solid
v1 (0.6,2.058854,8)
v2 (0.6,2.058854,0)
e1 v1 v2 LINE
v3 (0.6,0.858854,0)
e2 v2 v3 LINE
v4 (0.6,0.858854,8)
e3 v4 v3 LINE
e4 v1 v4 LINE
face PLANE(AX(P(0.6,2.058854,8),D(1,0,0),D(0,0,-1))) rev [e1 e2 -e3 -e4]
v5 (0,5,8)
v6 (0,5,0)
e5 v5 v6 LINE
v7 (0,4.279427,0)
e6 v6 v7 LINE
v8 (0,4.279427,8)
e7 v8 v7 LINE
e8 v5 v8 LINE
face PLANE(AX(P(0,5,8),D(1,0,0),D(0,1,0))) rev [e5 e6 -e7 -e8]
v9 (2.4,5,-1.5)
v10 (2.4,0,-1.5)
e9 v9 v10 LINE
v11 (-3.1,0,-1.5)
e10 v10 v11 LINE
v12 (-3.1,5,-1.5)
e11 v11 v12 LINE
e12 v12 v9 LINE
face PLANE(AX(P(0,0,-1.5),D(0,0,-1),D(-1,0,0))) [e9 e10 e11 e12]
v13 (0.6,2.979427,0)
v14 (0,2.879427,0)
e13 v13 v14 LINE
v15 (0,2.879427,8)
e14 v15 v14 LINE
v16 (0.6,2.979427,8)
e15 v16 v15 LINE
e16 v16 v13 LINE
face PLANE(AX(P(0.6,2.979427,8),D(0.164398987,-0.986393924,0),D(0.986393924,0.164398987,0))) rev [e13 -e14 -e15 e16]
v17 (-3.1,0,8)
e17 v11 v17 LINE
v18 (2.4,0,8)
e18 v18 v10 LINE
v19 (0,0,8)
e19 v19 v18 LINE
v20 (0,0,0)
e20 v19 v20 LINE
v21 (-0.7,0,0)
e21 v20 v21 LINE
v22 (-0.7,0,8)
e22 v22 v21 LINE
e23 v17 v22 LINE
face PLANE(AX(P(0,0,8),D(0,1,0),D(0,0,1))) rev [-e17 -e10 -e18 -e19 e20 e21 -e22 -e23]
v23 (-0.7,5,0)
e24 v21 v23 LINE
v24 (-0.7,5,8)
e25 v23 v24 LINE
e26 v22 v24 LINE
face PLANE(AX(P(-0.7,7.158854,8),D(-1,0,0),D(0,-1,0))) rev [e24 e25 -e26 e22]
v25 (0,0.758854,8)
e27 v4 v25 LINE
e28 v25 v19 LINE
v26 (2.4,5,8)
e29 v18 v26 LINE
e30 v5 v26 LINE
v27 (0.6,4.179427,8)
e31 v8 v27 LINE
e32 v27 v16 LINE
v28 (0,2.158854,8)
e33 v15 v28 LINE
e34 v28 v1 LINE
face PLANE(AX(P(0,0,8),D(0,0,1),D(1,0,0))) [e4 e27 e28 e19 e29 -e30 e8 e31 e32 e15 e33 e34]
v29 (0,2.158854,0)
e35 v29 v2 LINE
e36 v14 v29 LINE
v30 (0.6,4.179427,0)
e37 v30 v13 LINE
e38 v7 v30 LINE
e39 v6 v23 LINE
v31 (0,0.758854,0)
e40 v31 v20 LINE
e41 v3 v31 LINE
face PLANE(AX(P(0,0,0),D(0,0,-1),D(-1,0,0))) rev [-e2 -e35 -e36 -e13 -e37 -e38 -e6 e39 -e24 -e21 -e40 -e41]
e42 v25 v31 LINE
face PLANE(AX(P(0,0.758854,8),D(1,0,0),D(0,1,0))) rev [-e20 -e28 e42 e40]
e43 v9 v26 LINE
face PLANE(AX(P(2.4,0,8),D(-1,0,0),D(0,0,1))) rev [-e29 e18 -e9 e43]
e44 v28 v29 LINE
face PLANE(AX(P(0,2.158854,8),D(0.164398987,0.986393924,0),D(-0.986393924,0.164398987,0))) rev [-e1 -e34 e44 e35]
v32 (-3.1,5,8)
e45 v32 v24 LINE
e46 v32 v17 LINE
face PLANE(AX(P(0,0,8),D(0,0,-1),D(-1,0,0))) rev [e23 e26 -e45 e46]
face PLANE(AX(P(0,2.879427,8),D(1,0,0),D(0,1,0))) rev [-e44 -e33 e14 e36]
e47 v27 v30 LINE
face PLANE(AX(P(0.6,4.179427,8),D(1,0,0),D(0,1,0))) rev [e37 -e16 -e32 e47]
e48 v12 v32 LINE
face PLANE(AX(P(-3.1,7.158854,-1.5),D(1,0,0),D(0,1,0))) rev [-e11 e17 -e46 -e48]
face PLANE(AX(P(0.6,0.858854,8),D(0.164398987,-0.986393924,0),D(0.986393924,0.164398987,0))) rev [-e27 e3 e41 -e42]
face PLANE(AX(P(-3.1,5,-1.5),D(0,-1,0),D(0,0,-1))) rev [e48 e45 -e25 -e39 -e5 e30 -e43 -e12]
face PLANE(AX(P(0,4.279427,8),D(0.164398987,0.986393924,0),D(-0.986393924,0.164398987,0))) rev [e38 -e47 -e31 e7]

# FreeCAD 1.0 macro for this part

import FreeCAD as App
import Part
import Sketcher
Q = App.Units.Quantity


def add_polygon(sketch, points):
    """Adds a closed chain of lines whose ends are joined by coincident constraints."""
    first, n = sketch.GeometryCount, len(points)
    for a, b in zip(points, points[1:] + points[:1]):
        sketch.addGeometry(Part.LineSegment(App.Vector(*a, 0), App.Vector(*b, 0)), False)
    for i in range(n):
        sketch.addConstraint(Sketcher.Constraint("Coincident", first + i, 2, first + (i + 1) % n, 1))

doc = App.newDocument("Part")
body = doc.addObject("PartDesign::Body", "Body")

# Sketch on XY plane
sketch1 = doc.addObject("Sketcher::SketchObject", "Sketch")
body.addObject(sketch1)
sketch1.AttachmentSupport = (doc.XY_Plane, [""])
sketch1.MapMode = "FlatFace"
add_polygon(sketch1, [(0, 7.2), (0, 6.4), (0.6, 6.3), (0.6, 5.1), (0, 5), (0, 4.3), (0.6, 4.2), (0.6, 3), (0, 2.9), (0, 2.2), (0.6, 2.1), (0.6, 0.9), (0, 0.8), (0, 0), (2.4, 0), (2.4, 7.2)])  # lines 0-15
sketch1.addConstraint([
    Sketcher.Constraint("Vertical", 0),
    Sketcher.Constraint("Vertical", 2),
    Sketcher.Constraint("Vertical", 4),
    Sketcher.Constraint("Vertical", 6),
    Sketcher.Constraint("Vertical", 8),
    Sketcher.Constraint("Vertical", 10),
    Sketcher.Constraint("Vertical", 12),
    Sketcher.Constraint("Horizontal", 13),
    Sketcher.Constraint("Vertical", 14),
    Sketcher.Constraint("Horizontal", 15),
    Sketcher.Constraint("Coincident", 12, 2, -1, 1),
    Sketcher.Constraint("PointOnObject", 0, 2, -2),
    Sketcher.Constraint("PointOnObject", 3, 2, -2),
    Sketcher.Constraint("PointOnObject", 7, 2, -2),
    Sketcher.Constraint("Parallel", 1, 5),
    Sketcher.Constraint("Parallel", 3, 7),
    Sketcher.Constraint("Parallel", 5, 9),
    Sketcher.Constraint("Parallel", 7, 11),
    Sketcher.Constraint("Vertical", 2, 2, 5, 2),
    Sketcher.Constraint("Vertical", 6, 2, 9, 2),
    Sketcher.Constraint("Equal", 2, 6),
    Sketcher.Constraint("Equal", 4, 8),
    Sketcher.Constraint("Equal", 6, 10),
    Sketcher.Constraint("Equal", 0, 12),
    Sketcher.Constraint("Equal", 1, 3),
    Sketcher.Constraint("DistanceX", 13, 1, 13, 2, Q("2.4 mm")),
    Sketcher.Constraint("DistanceY", 2, 2, 2, 1, Q("1.2 mm")),
    Sketcher.Constraint("DistanceY", -1, 1, 3, 2, Q("5 mm")),
    Sketcher.Constraint("DistanceY", -1, 1, 0, 2, Q("6.4 mm")),
    Sketcher.Constraint("DistanceX", -1, 1, 1, 2, Q("0.6 mm")),
    Sketcher.Constraint("DistanceY", 0, 2, 0, 1, Q("0.758854 mm")),
])
pad1 = doc.addObject("PartDesign::Pad", "Pad")
body.addObject(pad1)
pad1.Profile = sketch1
pad1.Length = 8
body2 = doc.addObject("PartDesign::Body", "Body001")

# Sketch on XY plane
sketch2 = doc.addObject("Sketcher::SketchObject", "Sketch001")
body2.addObject(sketch2)
sketch2.AttachmentSupport = (doc.getObject("XY_Plane001"), [""])
sketch2.MapMode = "FlatFace"
add_polygon(sketch2, [(-3.1, 7.2), (-3.1, 0), (-0.7, 0), (-0.7, 7.2)])  # lines 0-3
sketch2.addConstraint([
    Sketcher.Constraint("Vertical", 0),
    Sketcher.Constraint("Horizontal", 1),
    Sketcher.Constraint("Vertical", 2),
    Sketcher.Constraint("Horizontal", 3),
    Sketcher.Constraint("PointOnObject", 0, 2, -1),
    Sketcher.Constraint("DistanceX", 1, 1, 1, 2, Q("2.4 mm")),
    Sketcher.Constraint("DistanceX", 0, 2, -1, 1, Q("3.1 mm")),
    Sketcher.Constraint("DistanceY", 0, 2, 0, 1, Q("7.158854 mm")),
])
pad2 = doc.addObject("PartDesign::Pad", "Pad001")
body2.addObject(pad2)
pad2.Profile = sketch2
pad2.Length = 8
body.AllowCompound = True
doc.recompute()

boolean = doc.addObject("PartDesign::Boolean", "Boolean")
body.addObject(boolean)
boolean.Type = "Fuse"
boolean.addObjects([body2])

# Sketch on XY plane
sketch3 = doc.addObject("Sketcher::SketchObject", "Sketch002")
body.addObject(sketch3)
sketch3.AttachmentSupport = (doc.XY_Plane, [""])
sketch3.MapMode = "FlatFace"
add_polygon(sketch3, [(2, 7), (2, 0), (-3, 0), (-3, 7)])  # lines 0-3
sketch3.addConstraint([
    Sketcher.Constraint("Vertical", 0),
    Sketcher.Constraint("Horizontal", 1),
    Sketcher.Constraint("Vertical", 2),
    Sketcher.Constraint("Horizontal", 3),
    Sketcher.Constraint("PointOnObject", 0, 2, -1),
    Sketcher.Constraint("DistanceX", 1, 2, 1, 1, Q("5.5 mm")),
    Sketcher.Constraint("DistanceX", -1, 1, 0, 2, Q("2.4 mm")),
    Sketcher.Constraint("DistanceY", 0, 2, 0, 1, Q("7.158854 mm")),
])
pad3 = doc.addObject("PartDesign::Pad", "Pad002")
body.addObject(pad3)
pad3.Profile = sketch3
pad3.Length = 1.5
pad3.Reversed = True

# Sketch on XY plane
sketch4 = doc.addObject("Sketcher::SketchObject", "Sketch003")
body.addObject(sketch4)
sketch4.AttachmentSupport = (doc.XY_Plane, [""])
sketch4.MapMode = "FlatFace"
sketch4.AttachmentOffset = App.Placement(App.Vector(0, 0, 8), App.Rotation())
add_polygon(sketch4, [(-3.1, 7.2), (-3.1, 5), (2.4, 5), (2.4, 7.2)])  # lines 0-3
sketch4.addConstraint([
    Sketcher.Constraint("Vertical", 0),
    Sketcher.Constraint("Horizontal", 1),
    Sketcher.Constraint("Vertical", 2),
    Sketcher.Constraint("Horizontal", 3),
    Sketcher.Constraint("DistanceX", 1, 1, 1, 2, Q("5.5 mm")),
    Sketcher.Constraint("DistanceY", -1, 1, 0, 2, Q("5 mm")),
    Sketcher.Constraint("DistanceX", 0, 2, -1, 1, Q("3.1 mm")),
    Sketcher.Constraint("DistanceY", 0, 2, 0, 1, Q("2.158854 mm")),
])
pocket1 = doc.addObject("PartDesign::Pocket", "Pocket")
body.addObject(pocket1)
pocket1.Profile = sketch4
pocket1.Type = "ThroughAll"

doc.recompute()
